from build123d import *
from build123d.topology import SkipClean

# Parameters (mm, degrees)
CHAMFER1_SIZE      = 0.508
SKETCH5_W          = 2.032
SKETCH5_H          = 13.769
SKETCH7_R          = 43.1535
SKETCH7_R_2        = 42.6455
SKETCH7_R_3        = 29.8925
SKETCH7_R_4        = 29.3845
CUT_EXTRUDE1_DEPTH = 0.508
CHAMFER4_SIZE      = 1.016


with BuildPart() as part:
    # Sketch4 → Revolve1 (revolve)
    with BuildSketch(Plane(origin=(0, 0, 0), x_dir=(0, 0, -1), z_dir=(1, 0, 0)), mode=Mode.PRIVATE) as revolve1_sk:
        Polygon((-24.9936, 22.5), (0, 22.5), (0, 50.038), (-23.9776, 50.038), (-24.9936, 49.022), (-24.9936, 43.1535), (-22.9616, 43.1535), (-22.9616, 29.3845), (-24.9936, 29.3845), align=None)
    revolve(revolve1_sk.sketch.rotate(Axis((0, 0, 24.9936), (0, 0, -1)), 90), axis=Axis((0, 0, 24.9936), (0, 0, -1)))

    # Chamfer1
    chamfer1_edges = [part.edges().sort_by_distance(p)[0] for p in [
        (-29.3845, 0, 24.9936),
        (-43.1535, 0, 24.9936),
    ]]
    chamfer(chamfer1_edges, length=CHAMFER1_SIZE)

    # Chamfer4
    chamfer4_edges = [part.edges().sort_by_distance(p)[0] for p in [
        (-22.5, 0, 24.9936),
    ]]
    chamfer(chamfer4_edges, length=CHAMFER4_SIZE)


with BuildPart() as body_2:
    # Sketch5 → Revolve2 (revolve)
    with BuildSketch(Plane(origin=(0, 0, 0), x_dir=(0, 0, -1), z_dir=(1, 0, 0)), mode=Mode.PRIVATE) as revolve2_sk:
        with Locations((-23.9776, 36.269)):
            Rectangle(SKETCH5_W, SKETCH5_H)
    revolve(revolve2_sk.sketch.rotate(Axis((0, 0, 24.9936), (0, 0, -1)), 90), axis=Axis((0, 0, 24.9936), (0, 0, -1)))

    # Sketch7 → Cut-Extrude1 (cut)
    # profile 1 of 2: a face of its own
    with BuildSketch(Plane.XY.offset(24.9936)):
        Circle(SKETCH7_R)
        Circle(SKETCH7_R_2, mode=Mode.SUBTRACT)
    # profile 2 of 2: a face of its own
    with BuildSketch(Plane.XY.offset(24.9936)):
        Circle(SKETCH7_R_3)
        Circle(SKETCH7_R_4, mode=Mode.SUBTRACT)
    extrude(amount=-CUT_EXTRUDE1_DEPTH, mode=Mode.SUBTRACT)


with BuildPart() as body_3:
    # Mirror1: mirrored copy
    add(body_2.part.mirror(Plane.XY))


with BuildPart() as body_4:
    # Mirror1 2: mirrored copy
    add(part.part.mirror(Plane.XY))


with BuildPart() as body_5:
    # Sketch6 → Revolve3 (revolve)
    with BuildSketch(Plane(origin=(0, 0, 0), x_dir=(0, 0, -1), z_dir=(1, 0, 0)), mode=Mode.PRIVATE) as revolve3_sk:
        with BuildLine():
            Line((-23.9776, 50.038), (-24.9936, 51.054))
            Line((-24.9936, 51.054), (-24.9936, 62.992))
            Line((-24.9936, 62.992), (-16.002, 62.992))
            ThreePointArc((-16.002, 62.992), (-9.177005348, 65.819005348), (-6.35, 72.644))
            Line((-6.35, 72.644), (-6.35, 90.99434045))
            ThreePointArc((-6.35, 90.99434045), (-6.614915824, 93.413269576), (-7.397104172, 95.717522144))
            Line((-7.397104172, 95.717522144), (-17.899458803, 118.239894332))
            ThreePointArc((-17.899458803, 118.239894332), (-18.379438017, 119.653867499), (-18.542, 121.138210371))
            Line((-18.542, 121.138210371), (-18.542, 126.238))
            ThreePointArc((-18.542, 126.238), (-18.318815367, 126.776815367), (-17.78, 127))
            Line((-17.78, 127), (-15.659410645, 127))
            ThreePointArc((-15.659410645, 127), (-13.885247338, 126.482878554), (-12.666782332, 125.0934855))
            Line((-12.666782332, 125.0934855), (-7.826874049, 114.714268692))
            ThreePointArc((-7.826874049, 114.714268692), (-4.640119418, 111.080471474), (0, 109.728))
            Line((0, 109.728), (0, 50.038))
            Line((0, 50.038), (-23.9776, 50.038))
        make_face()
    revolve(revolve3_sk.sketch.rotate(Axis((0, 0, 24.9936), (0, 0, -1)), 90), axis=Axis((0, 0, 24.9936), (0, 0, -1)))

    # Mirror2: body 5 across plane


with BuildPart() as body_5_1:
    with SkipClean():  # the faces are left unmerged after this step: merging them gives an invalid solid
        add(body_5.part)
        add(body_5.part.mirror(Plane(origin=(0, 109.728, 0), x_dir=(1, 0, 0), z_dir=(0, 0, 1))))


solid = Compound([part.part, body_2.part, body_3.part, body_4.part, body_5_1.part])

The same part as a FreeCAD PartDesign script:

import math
import FreeCAD as App
import Part
import Sketcher

V = App.Vector
Q = App.Units.Quantity


def edges_at(feature, points):
    """Names of the edges that pass closest to the given points."""
    edges = feature.Shape.Edges
    near = lambda p: min(range(len(edges)), key=lambda i: edges[i].distToShape(Part.Vertex(*p))[0])
    return sorted({f"Edge{near(p) + 1}" for p in points})


def add_polygon(sketch, points):
    """Adds a closed chain of lines whose ends are joined by coincident constraints."""
    first, n = sketch.GeometryCount, len(points)
    for a, b in zip(points, points[1:] + points[:1]):
        sketch.addGeometry(Part.LineSegment(App.Vector(*a, 0), App.Vector(*b, 0)), False)
    for i in range(n):
        sketch.addConstraint(Sketcher.Constraint("Coincident", first + i, 2, first + (i + 1) % n, 1))

doc = App.newDocument("Part")
body = doc.addObject("PartDesign::Body", "Body")

sketch1 = body.newObject("Sketcher::SketchObject", "Sketch")
sketch1.AttachmentSupport = (doc.getObject("YZ_Plane"), [""])
sketch1.MapMode = "FlatFace"
add_polygon(sketch1, [(22.5, 25), (22.5, 0), (50, 0), (50, 24), (49, 25), (43.2, 25), (43.2, 23), (29.4, 23), (29.4, 25)])
sketch1.addConstraint(Sketcher.Constraint("Vertical", 0))
sketch1.addConstraint(Sketcher.Constraint("Horizontal", 1))
sketch1.addConstraint(Sketcher.Constraint("Vertical", 2))
sketch1.addConstraint(Sketcher.Constraint("Horizontal", 4))
sketch1.addConstraint(Sketcher.Constraint("Vertical", 5))
sketch1.addConstraint(Sketcher.Constraint("Horizontal", 6))
sketch1.addConstraint(Sketcher.Constraint("Vertical", 7))
sketch1.addConstraint(Sketcher.Constraint("Horizontal", 8))
sketch1.addConstraint(Sketcher.Constraint("PointOnObject", 0, 2, -1))
sketch1.addConstraint(Sketcher.Constraint("Horizontal", 4, 2, 7, 2))
sketch1.addConstraint(Sketcher.Constraint("Angle", 3, Q("135 deg")))
sketch1.addConstraint(Sketcher.Constraint("DistanceY", 5, 2, 5, 1, Q("0.08 in")))
sketch1.addConstraint(Sketcher.Constraint("DistanceY", 0, 2, 0, 1, Q("0.984 in")))
sketch1.addConstraint(Sketcher.Constraint("DistanceY", 2, 1, 2, 2, Q("0.944 in")))
sketch1.addConstraint(Sketcher.Constraint("DistanceX", -1, 1, 1, 2, Q("1.97 in")))
sketch1.addConstraint(Sketcher.Constraint("DistanceX", 1, 1, 1, 2, Q("27.538 mm")))
sketch1.addConstraint(Sketcher.Constraint("DistanceX", 4, 2, 4, 1, Q("5.8685 mm")))
sketch1.addConstraint(Sketcher.Constraint("DistanceX", 6, 2, 6, 1, Q("13.769 mm")))
revolution = body.newObject("PartDesign::Revolution", "Revolution")
revolution.Profile = sketch1
revolution.ReferenceAxis = (sketch1, ["V_Axis"])
revolution.Angle = 360
doc.recompute()

chamfer = body.newObject("PartDesign::Chamfer", "Chamfer")
chamfer.Base = (revolution, edges_at(revolution, [(-29.384, 0, 24.994), (-43.154, 0, 24.994)]))
chamfer.Size = Q("0.02 in")
doc.recompute()

chamfer2 = body.newObject("PartDesign::Chamfer", "Chamfer001")
chamfer2.Base = (chamfer, edges_at(chamfer, [(-22.5, 0, 24.994)]))
chamfer2.Size = Q("0.04 in")
body2 = doc.addObject("PartDesign::Body", "Body001")

sketch2 = body2.newObject("Sketcher::SketchObject", "Sketch001")
sketch2.AttachmentSupport = (doc.getObject("YZ_Plane001"), [""])
sketch2.MapMode = "FlatFace"
add_polygon(sketch2, [(43.2, 25), (29.4, 25), (29.4, 23), (43.2, 23)])
sketch2.addConstraint(Sketcher.Constraint("Horizontal", 0))
sketch2.addConstraint(Sketcher.Constraint("Vertical", 1))
sketch2.addConstraint(Sketcher.Constraint("Horizontal", 2))
sketch2.addConstraint(Sketcher.Constraint("Vertical", 3))
sketch2.addConstraint(Sketcher.Constraint("DistanceY", 1, 2, 1, 1, Q("0.08 in")))
sketch2.addConstraint(Sketcher.Constraint("DistanceY", -1, 1, 0, 2, Q("0.984 in")))
sketch2.addConstraint(Sketcher.Constraint("DistanceX", 0, 2, 0, 1, Q("13.769 mm")))
sketch2.addConstraint(Sketcher.Constraint("DistanceX", -1, 1, 0, 2, Q("29.3845 mm")))
revolution2 = body2.newObject("PartDesign::Revolution", "Revolution001")
revolution2.Profile = sketch2
revolution2.ReferenceAxis = (sketch2, ["V_Axis"])
revolution2.Angle = 360

sketch3 = body2.newObject("Sketcher::SketchObject", "Sketch002")
sketch3.AttachmentSupport = (doc.getObject("XY_Plane001"), [""])
sketch3.MapMode = "FlatFace"
sketch3.AttachmentOffset = App.Placement(V(0, 0, 0.984 * 25.4), App.Rotation())
sketch3.addGeometry(Part.Circle(V(0, 0, 0), V(0, 0, 1), 43), False)
sketch3.addGeometry(Part.Circle(V(0, 0, 0), V(0, 0, 1), 43), False)
sketch3.addGeometry(Part.Circle(V(0, 0, 0), V(0, 0, 1), 30), False)
sketch3.addGeometry(Part.Circle(V(0, 0, 0), V(0, 0, 1), 29), False)
sketch3.addConstraint(Sketcher.Constraint("Coincident", 0, 3, -1, 1))
sketch3.addConstraint(Sketcher.Constraint("Coincident", 1, 3, -1, 1))
sketch3.addConstraint(Sketcher.Constraint("Coincident", 2, 3, -1, 1))
sketch3.addConstraint(Sketcher.Constraint("Coincident", 3, 3, -1, 1))
sketch3.addConstraint(Sketcher.Constraint("Diameter", 0, Q("86.307 mm")))
sketch3.addConstraint(Sketcher.Constraint("Diameter", 1, Q("85.291 mm")))
sketch3.addConstraint(Sketcher.Constraint("Diameter", 2, Q("59.785 mm")))
sketch3.addConstraint(Sketcher.Constraint("Diameter", 3, Q("58.769 mm")))
pocket1 = body2.newObject("PartDesign::Pocket", "Pocket")
pocket1.Profile = sketch3
pocket1.Length = Q("0.02 in")
body3 = doc.addObject("PartDesign::Body", "Body002")
doc.recompute()

mirroring = doc.addObject("Part::Mirroring", "Mirroring")
mirroring.Source = body2
mirroring.Base = V(0, 0, 0)
mirroring.Normal = V(0, 0, 1)
body3.BaseFeature = mirroring
doc.recompute()
body4 = doc.addObject("PartDesign::Body", "Body003")
doc.recompute()

mirroring2 = doc.addObject("Part::Mirroring", "Mirroring001")
mirroring2.Source = body
mirroring2.Base = V(0, 0, 0)
mirroring2.Normal = V(0, 0, 1)
body4.BaseFeature = mirroring2
doc.recompute()
body5 = doc.addObject("PartDesign::Body", "Body004")

sketch4 = body5.newObject("Sketcher::SketchObject", "Sketch003")
sketch4.AttachmentSupport = (doc.getObject("YZ_Plane004"), [""])
sketch4.MapMode = "FlatFace"
sketch4.addGeometry(Part.LineSegment(V(51.1, 25, 0), V(50, 24, 0)), False)
sketch4.addGeometry(Part.LineSegment(V(50, 24, 0), V(50, 0, 0)), False)
sketch4.addGeometry(Part.LineSegment(V(50, 0, 0), V(109.7, 0, 0)), False)
sketch4.addGeometry(Part.ArcOfCircle(Part.Circle(V(118.4, 0, 0), V(0, 0, 1), 8.6), math.radians(115), math.radians(180)), False)
sketch4.addGeometry(Part.LineSegment(V(114.7, 7.8, 0), V(125.1, 12.7, 0)), False)
sketch4.addGeometry(Part.ArcOfCircle(Part.Circle(V(123.7, 15.7, 0), V(0, 0, 1), 3.3), math.radians(-65), math.radians(0)), False)
sketch4.addGeometry(Part.LineSegment(V(127, 15.7, 0), V(127, 17.8, 0)), False)
sketch4.addGeometry(Part.ArcOfCircle(Part.Circle(V(126.2, 17.8, 0), V(0, 0, 1), 0.8), math.radians(0), math.radians(90)), False)
sketch4.addGeometry(Part.LineSegment(V(126.2, 18.5, 0), V(121.1, 18.5, 0)), False)
sketch4.addGeometry(Part.ArcOfCircle(Part.Circle(V(121.1, 11.7, 0), V(0, 0, 1), 6.9), math.radians(90), math.radians(115)), False)
sketch4.addGeometry(Part.LineSegment(V(118.2, 17.9, 0), V(95.7, 7.4, 0)), False)
sketch4.addGeometry(Part.ArcOfCircle(Part.Circle(V(91, 17.5, 0), V(0, 0, 1), 11.2), math.radians(-90), math.radians(-65)), False)
sketch4.addGeometry(Part.LineSegment(V(91, 6.3, 0), V(72.6, 6.3, 0)), False)
sketch4.addGeometry(Part.ArcOfCircle(Part.Circle(V(72.6, 16, 0), V(0, 0, 1), 9.7), math.radians(180), math.radians(270)), False)
sketch4.addGeometry(Part.LineSegment(V(63, 16, 0), V(63, 25, 0)), False)
sketch4.addGeometry(Part.LineSegment(V(63, 25, 0), V(51.1, 25, 0)), False)
sketch4.addConstraint(Sketcher.Constraint("Coincident", 0, 2, 1, 1))
sketch4.addConstraint(Sketcher.Constraint("Coincident", 1, 2, 2, 1))
sketch4.addConstraint(Sketcher.Constraint("Coincident", 2, 2, 3, 2))
sketch4.addConstraint(Sketcher.Constraint("Tangent", 3, 1, 4, 1))
sketch4.addConstraint(Sketcher.Constraint("Tangent", 4, 2, 5, 1))
sketch4.addConstraint(Sketcher.Constraint("Tangent", 5, 2, 6, 1))
sketch4.addConstraint(Sketcher.Constraint("Tangent", 6, 2, 7, 1))
sketch4.addConstraint(Sketcher.Constraint("Tangent", 7, 2, 8, 1))
sketch4.addConstraint(Sketcher.Constraint("Tangent", 8, 2, 9, 1))
sketch4.addConstraint(Sketcher.Constraint("Tangent", 9, 2, 10, 1))
sketch4.addConstraint(Sketcher.Constraint("Tangent", 10, 2, 11, 2))
sketch4.addConstraint(Sketcher.Constraint("Tangent", 11, 1, 12, 1))
sketch4.addConstraint(Sketcher.Constraint("Tangent", 12, 2, 13, 2))
sketch4.addConstraint(Sketcher.Constraint("Tangent", 13, 1, 14, 1))
sketch4.addConstraint(Sketcher.Constraint("Coincident", 14, 2, 15, 1))
sketch4.addConstraint(Sketcher.Constraint("Coincident", 15, 2, 0, 1))
sketch4.addConstraint(Sketcher.Constraint("Vertical", 1))
sketch4.addConstraint(Sketcher.Constraint("Horizontal", 2))
sketch4.addConstraint(Sketcher.Constraint("Vertical", 6))
sketch4.addConstraint(Sketcher.Constraint("Horizontal", 8))
sketch4.addConstraint(Sketcher.Constraint("Horizontal", 12))
sketch4.addConstraint(Sketcher.Constraint("Vertical", 14))
sketch4.addConstraint(Sketcher.Constraint("Horizontal", 15))
sketch4.addConstraint(Sketcher.Constraint("PointOnObject", 3, 3, -1))
sketch4.addConstraint(Sketcher.Constraint("PointOnObject", 1, 2, -1))
sketch4.addConstraint(Sketcher.Constraint("Parallel", 4, 10))
sketch4.addConstraint(Sketcher.Constraint("Radius", 3, Q("0.34 in")))
sketch4.addConstraint(Sketcher.Constraint("Radius", 5, Q("0.13 in")))
sketch4.addConstraint(Sketcher.Constraint("Radius", 7, Q("0.03 in")))
sketch4.addConstraint(Sketcher.Constraint("Radius", 9, Q("0.27 in")))
sketch4.addConstraint(Sketcher.Constraint("Radius", 11, Q("0.44 in")))
sketch4.addConstraint(Sketcher.Constraint("Radius", 13, Q("0.38 in")))
sketch4.addConstraint(Sketcher.Constraint("DistanceX", -1, 1, 5, 2, Q("5 in")))
sketch4.addConstraint(Sketcher.Constraint("Angle", 0, Q("-135 deg")))
sketch4.addConstraint(Sketcher.Constraint("Angle", 4, Q("25 deg")))
sketch4.addConstraint(Sketcher.Constraint("DistanceX", 2, 1, 2, 2, Q("2.35 in")))
sketch4.addConstraint(Sketcher.Constraint("DistanceX", 15, 2, 15, 1, Q("0.47 in")))
sketch4.addConstraint(Sketcher.Constraint("DistanceY", -1, 1, 7, 3, Q("0.7 in")))
sketch4.addConstraint(Sketcher.Constraint("DistanceX", 13, 3, 3, 3, Q("1.8 in")))
sketch4.addConstraint(Sketcher.Constraint("DistanceX", 0, 2, 5, 3, Q("2.9 in")))
sketch4.addConstraint(Sketcher.Constraint("DistanceY", 1, 2, 1, 1, Q("0.944 in")))
sketch4.addConstraint(Sketcher.Constraint("DistanceY", 14, 1, 14, 2, Q("0.354 in")))
sketch4.addConstraint(Sketcher.Constraint("DistanceX", 8, 2, 8, 1, Q("5.09979 mm")))
revolution3 = body5.newObject("PartDesign::Revolution", "Revolution002")
revolution3.Profile = sketch4
revolution3.ReferenceAxis = (sketch4, ["V_Axis"])
revolution3.Angle = 360
body6 = doc.addObject("PartDesign::Body", "Body005")
doc.recompute()

body6.BaseFeature = body5
doc.recompute()

mirroring3 = doc.addObject("Part::Mirroring", "Mirroring002")
mirroring3.Source = body5
mirroring3.Base = V(0, 109.728, 0)
mirroring3.Normal = V(0, 0, 1)
body7 = doc.addObject("PartDesign::Body", "Body006")
body7.BaseFeature = mirroring3
boolean = body6.newObject("PartDesign::Boolean", "Boolean")
boolean.Type = "Fuse"
boolean.addObjects([body7])
doc.recompute()
mirroring.Visibility = False
mirroring2.Visibility = False
mirroring3.Visibility = False

doc.recompute()
